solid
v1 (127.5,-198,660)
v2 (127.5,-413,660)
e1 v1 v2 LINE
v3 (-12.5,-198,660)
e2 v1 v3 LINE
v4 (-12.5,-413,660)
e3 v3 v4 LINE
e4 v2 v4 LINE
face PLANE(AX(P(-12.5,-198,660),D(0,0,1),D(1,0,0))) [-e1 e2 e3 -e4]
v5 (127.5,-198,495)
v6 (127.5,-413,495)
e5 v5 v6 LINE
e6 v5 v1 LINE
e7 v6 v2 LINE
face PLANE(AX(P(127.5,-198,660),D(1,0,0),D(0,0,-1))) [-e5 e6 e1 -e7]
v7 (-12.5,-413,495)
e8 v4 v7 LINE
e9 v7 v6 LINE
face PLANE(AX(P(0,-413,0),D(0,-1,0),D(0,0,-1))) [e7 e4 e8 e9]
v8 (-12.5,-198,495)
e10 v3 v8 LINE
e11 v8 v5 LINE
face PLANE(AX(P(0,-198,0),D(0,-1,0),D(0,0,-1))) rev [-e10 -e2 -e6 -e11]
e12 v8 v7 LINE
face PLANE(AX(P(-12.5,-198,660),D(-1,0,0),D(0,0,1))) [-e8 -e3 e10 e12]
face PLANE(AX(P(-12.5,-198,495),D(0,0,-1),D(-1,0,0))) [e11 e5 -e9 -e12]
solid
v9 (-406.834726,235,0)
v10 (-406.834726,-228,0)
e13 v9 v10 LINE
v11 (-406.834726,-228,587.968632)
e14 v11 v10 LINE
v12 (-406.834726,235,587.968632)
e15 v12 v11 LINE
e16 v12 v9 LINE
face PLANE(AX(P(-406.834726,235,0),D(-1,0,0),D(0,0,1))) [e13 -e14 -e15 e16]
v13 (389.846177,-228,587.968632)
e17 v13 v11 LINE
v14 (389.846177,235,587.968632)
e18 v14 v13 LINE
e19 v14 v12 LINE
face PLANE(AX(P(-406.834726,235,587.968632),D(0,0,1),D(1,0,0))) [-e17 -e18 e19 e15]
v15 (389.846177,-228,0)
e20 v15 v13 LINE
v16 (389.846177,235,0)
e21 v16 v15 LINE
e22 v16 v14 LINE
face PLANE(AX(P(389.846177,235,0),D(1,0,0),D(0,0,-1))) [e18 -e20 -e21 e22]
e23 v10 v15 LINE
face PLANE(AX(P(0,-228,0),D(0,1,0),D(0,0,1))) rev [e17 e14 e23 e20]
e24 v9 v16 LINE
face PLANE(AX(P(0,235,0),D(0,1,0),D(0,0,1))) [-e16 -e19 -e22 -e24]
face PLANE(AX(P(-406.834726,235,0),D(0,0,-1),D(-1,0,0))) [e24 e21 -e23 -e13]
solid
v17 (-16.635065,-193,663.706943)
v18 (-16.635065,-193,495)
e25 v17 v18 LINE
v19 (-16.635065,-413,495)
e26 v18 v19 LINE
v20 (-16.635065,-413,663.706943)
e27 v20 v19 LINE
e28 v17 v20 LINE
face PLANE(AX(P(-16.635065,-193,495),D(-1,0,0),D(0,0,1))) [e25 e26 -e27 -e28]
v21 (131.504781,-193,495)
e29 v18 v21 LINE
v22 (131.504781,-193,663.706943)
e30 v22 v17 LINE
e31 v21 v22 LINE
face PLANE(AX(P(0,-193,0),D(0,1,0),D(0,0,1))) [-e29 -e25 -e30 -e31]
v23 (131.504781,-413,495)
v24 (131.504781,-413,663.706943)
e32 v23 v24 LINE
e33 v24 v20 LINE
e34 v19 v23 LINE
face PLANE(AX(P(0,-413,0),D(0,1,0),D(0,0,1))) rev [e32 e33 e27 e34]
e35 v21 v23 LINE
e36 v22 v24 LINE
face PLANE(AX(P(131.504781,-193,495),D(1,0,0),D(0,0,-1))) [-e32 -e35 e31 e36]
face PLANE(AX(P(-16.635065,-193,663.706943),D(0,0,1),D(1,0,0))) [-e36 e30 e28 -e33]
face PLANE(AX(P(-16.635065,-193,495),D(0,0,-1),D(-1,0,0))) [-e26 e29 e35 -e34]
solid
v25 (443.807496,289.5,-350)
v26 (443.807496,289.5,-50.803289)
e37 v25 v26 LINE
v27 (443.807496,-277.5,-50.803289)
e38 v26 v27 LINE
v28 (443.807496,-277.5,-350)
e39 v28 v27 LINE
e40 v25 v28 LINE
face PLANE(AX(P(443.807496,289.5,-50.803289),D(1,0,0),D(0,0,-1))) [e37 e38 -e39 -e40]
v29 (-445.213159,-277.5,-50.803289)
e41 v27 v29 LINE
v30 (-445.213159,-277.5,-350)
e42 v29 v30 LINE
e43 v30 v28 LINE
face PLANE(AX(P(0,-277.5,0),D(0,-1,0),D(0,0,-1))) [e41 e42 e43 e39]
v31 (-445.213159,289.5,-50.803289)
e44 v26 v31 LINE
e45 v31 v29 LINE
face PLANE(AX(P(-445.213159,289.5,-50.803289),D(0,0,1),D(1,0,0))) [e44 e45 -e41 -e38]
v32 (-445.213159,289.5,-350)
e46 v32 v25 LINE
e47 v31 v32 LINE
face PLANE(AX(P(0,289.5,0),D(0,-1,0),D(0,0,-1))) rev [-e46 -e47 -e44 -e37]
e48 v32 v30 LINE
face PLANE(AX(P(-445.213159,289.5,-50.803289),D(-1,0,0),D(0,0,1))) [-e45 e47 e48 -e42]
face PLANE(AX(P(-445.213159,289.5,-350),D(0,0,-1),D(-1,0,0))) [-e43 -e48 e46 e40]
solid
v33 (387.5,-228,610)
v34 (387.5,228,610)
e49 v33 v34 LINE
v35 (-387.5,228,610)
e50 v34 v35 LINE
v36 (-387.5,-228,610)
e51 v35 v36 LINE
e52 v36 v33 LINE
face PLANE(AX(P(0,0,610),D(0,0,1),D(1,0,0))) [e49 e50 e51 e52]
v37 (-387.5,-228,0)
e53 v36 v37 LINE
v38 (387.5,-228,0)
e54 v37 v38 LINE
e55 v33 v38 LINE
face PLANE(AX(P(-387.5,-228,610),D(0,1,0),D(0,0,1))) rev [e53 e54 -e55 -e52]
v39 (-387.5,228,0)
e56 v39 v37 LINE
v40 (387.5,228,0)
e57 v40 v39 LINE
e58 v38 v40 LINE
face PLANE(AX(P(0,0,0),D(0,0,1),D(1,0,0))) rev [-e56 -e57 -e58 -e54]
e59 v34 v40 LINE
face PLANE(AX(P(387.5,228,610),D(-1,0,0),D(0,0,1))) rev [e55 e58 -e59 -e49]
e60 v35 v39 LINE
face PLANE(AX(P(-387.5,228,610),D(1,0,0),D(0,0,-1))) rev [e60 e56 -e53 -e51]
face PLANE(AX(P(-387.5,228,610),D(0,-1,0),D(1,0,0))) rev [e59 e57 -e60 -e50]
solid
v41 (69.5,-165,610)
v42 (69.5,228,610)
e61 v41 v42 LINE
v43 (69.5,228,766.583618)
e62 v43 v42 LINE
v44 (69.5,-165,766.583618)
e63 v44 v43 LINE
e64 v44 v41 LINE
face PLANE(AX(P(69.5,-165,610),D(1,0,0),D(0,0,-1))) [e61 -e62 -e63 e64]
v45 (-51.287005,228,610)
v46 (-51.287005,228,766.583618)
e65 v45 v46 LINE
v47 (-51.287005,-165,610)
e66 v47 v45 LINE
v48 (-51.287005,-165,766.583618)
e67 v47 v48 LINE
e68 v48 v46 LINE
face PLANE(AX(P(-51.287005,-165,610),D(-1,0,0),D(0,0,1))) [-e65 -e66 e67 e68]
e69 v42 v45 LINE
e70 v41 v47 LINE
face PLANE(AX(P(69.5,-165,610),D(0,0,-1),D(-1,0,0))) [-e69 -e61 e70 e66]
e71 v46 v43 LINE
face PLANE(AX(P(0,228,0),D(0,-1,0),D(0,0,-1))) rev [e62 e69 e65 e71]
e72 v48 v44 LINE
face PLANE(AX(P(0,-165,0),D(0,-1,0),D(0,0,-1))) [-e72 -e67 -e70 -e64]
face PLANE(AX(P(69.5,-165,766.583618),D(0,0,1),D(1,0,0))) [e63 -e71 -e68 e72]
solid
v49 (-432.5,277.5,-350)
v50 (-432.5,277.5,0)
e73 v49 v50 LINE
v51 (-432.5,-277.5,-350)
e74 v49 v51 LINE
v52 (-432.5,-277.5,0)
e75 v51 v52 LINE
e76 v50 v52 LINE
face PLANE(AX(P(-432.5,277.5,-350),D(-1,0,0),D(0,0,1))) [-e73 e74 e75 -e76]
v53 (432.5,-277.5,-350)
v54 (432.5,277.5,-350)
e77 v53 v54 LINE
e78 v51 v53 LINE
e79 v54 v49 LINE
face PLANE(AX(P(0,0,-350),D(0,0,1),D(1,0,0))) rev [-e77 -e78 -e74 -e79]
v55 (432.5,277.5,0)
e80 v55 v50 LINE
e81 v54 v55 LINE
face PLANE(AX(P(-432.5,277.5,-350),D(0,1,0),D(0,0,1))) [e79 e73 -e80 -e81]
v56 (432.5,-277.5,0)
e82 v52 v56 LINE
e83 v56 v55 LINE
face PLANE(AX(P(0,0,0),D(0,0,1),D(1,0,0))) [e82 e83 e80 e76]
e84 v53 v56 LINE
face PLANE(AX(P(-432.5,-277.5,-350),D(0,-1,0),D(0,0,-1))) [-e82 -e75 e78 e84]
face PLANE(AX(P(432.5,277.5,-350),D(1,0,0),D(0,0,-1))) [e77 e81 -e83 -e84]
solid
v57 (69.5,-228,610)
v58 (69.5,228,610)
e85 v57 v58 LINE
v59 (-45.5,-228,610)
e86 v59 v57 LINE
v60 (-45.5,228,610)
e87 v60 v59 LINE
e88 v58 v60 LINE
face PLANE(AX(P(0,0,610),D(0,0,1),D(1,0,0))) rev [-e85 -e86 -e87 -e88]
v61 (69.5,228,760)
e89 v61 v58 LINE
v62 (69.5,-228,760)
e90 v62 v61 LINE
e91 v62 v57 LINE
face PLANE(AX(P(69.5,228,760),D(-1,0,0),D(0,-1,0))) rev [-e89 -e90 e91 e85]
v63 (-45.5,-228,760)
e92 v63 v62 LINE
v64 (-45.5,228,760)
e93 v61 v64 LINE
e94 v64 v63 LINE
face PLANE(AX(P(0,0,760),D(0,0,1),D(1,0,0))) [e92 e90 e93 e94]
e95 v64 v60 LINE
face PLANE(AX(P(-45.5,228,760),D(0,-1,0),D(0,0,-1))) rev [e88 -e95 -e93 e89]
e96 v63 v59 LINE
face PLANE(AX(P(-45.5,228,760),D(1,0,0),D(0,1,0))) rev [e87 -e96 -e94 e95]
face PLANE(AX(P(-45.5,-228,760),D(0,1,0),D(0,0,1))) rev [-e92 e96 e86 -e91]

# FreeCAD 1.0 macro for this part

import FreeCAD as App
import Part
import Sketcher

V = App.Vector

doc = App.newDocument("Part")
body = doc.addObject("PartDesign::Body", "Body")

# Sketch on XY plane
sketch1 = doc.addObject("Sketcher::SketchObject", "Sketch")
body.addObject(sketch1)
sketch1.AttachmentSupport = (doc.XY_Plane, [""])
sketch1.MapMode = "FlatFace"
sketch1.addGeometry([
    Part.LineSegment(V(-432, 278, 0), V(-432, -278, 0)),
    Part.LineSegment(V(-432, -278, 0), V(432, -278, 0)),
    Part.LineSegment(V(432, -278, 0), V(432, 278, 0)),
    Part.LineSegment(V(432, 278, 0), V(-432, 278, 0)),
], False)
sketch1.addConstraint([
    Sketcher.Constraint("Coincident", 0, 2, 1, 1),
    Sketcher.Constraint("Coincident", 1, 2, 2, 1),
    Sketcher.Constraint("Coincident", 2, 2, 3, 1),
    Sketcher.Constraint("Coincident", 3, 2, 0, 1),
    Sketcher.Constraint("Vertical", 0),
    Sketcher.Constraint("Horizontal", 1),
    Sketcher.Constraint("Vertical", 2),
    Sketcher.Constraint("Horizontal", 3),
    Sketcher.Constraint("Symmetric", 0, 2, 2, 2, -1, 1),
    Sketcher.Constraint("DistanceX", 1, 1, 1, 2, 865.0),
    Sketcher.Constraint("DistanceY", 0, 2, 0, 1, 555.0),
])
pad1 = doc.addObject("PartDesign::Pad", "Pad")
body.addObject(pad1)
pad1.Profile = sketch1
pad1.Length = 350
pad1.Reversed = True
body2 = doc.addObject("PartDesign::Body", "Body001")

# Sketch on XY plane
sketch2 = doc.addObject("Sketcher::SketchObject", "Sketch001")
body2.addObject(sketch2)
sketch2.AttachmentSupport = (doc.getObject("XY_Plane001"), [""])
sketch2.MapMode = "FlatFace"
sketch2.addGeometry([
    Part.LineSegment(V(-388, 228, 0), V(-388, -228, 0)),
    Part.LineSegment(V(-388, -228, 0), V(388, -228, 0)),
    Part.LineSegment(V(388, -228, 0), V(388, 228, 0)),
    Part.LineSegment(V(388, 228, 0), V(-388, 228, 0)),
], False)
sketch2.addConstraint([
    Sketcher.Constraint("Coincident", 0, 2, 1, 1),
    Sketcher.Constraint("Coincident", 1, 2, 2, 1),
    Sketcher.Constraint("Coincident", 2, 2, 3, 1),
    Sketcher.Constraint("Coincident", 3, 2, 0, 1),
    Sketcher.Constraint("Vertical", 0),
    Sketcher.Constraint("Horizontal", 1),
    Sketcher.Constraint("Vertical", 2),
    Sketcher.Constraint("Horizontal", 3),
    Sketcher.Constraint("Symmetric", 0, 2, 2, 2, -1, 1),
    Sketcher.Constraint("DistanceX", 1, 1, 1, 2, 775.0),
    Sketcher.Constraint("DistanceY", 0, 2, 0, 1, 456.0),
])
pad2 = doc.addObject("PartDesign::Pad", "Pad001")
body2.addObject(pad2)
pad2.Profile = sketch2
pad2.Length = 610
body3 = doc.addObject("PartDesign::Body", "Body002")

# Sketch on XY plane
sketch3 = doc.addObject("Sketcher::SketchObject", "Sketch002")
body3.addObject(sketch3)
sketch3.AttachmentSupport = (doc.getObject("XY_Plane002"), [""])
sketch3.MapMode = "FlatFace"
sketch3.AttachmentOffset = App.Placement(V(0, 0, 610), App.Rotation())
sketch3.addGeometry([
    Part.LineSegment(V(-46, 228, 0), V(-46, -228, 0)),
    Part.LineSegment(V(-46, -228, 0), V(70, -228, 0)),
    Part.LineSegment(V(70, -228, 0), V(70, 228, 0)),
    Part.LineSegment(V(70, 228, 0), V(-46, 228, 0)),
], False)
sketch3.addConstraint([
    Sketcher.Constraint("Coincident", 0, 2, 1, 1),
    Sketcher.Constraint("Coincident", 1, 2, 2, 1),
    Sketcher.Constraint("Coincident", 2, 2, 3, 1),
    Sketcher.Constraint("Coincident", 3, 2, 0, 1),
    Sketcher.Constraint("Vertical", 0),
    Sketcher.Constraint("Horizontal", 1),
    Sketcher.Constraint("Vertical", 2),
    Sketcher.Constraint("Horizontal", 3),
    Sketcher.Constraint("DistanceX", 1, 1, 1, 2, 115.0),
    Sketcher.Constraint("DistanceY", 0, 2, 0, 1, 456.0),
    Sketcher.Constraint("DistanceY", 0, 2, -1, 1, 228.0),
    Sketcher.Constraint("DistanceX", 0, 2, -1, 1, 45.5),
])
pad3 = doc.addObject("PartDesign::Pad", "Pad002")
body3.addObject(pad3)
pad3.Profile = sketch3
pad3.Length = 150
body4 = doc.addObject("PartDesign::Body", "Body003")

# Sketch on XZ plane
sketch4 = doc.addObject("Sketcher::SketchObject", "Sketch003")
body4.addObject(sketch4)
sketch4.AttachmentSupport = (doc.getObject("XZ_Plane003"), [""])
sketch4.MapMode = "FlatFace"
sketch4.AttachmentOffset = App.Placement(V(0, 0, 228), App.Rotation())
sketch4.addGeometry([
    Part.LineSegment(V(128, 495, 0), V(128, 660, 0)),
    Part.LineSegment(V(128, 660, 0), V(-12, 660, 0)),
    Part.LineSegment(V(-12, 660, 0), V(-12, 495, 0)),
    Part.LineSegment(V(-12, 495, 0), V(128, 495, 0)),
], False)
sketch4.addConstraint([
    Sketcher.Constraint("Coincident", 0, 2, 1, 1),
    Sketcher.Constraint("Coincident", 1, 2, 2, 1),
    Sketcher.Constraint("Coincident", 2, 2, 3, 1),
    Sketcher.Constraint("Coincident", 3, 2, 0, 1),
    Sketcher.Constraint("Vertical", 0),
    Sketcher.Constraint("Horizontal", 1),
    Sketcher.Constraint("Vertical", 2),
    Sketcher.Constraint("Horizontal", 3),
    Sketcher.Constraint("DistanceX", 1, 2, 1, 1, 140.0),
    Sketcher.Constraint("DistanceY", 0, 1, 0, 2, 165.0),
    Sketcher.Constraint("DistanceY", -1, 1, 0, 2, 660.0),
    Sketcher.Constraint("DistanceX", -1, 1, 0, 2, 127.5),
])
pad4 = doc.addObject("PartDesign::Pad", "Pad003")
body4.addObject(pad4)
pad4.Profile = sketch4
pad4.Type = "TwoLengths"
pad4.Length = 185
pad4.Length2 = 30
body5 = doc.addObject("PartDesign::Body", "Body004")

# Sketch on XZ plane
sketch5 = doc.addObject("Sketcher::SketchObject", "Sketch004")
body5.addObject(sketch5)
sketch5.AttachmentSupport = (doc.getObject("XZ_Plane004"), [""])
sketch5.MapMode = "FlatFace"
sketch5.AttachmentOffset = App.Placement(V(0, 0, 277.5), App.Rotation())
sketch5.addGeometry([
    Part.LineSegment(V(444, -350, 0), V(444, -51, 0)),
    Part.LineSegment(V(444, -51, 0), V(-445, -51, 0)),
    Part.LineSegment(V(-445, -51, 0), V(-445, -350, 0)),
    Part.LineSegment(V(-445, -350, 0), V(444, -350, 0)),
], False)
sketch5.addConstraint([
    Sketcher.Constraint("Coincident", 0, 2, 1, 1),
    Sketcher.Constraint("Coincident", 1, 2, 2, 1),
    Sketcher.Constraint("Coincident", 2, 2, 3, 1),
    Sketcher.Constraint("Coincident", 3, 2, 0, 1),
    Sketcher.Constraint("Vertical", 0),
    Sketcher.Constraint("Horizontal", 1),
    Sketcher.Constraint("Vertical", 2),
    Sketcher.Constraint("Horizontal", 3),
    Sketcher.Constraint("DistanceY", 2, 2, -1, 1, 350.0),
    Sketcher.Constraint("DistanceY", 0, 1, 0, 2, 299.196711),
    Sketcher.Constraint("DistanceX", 1, 2, 1, 1, 889.020655),
    Sketcher.Constraint("DistanceX", 1, 2, -1, 1, 445.213159),
])
pad5 = doc.addObject("PartDesign::Pad", "Pad004")
body5.addObject(pad5)
pad5.Profile = sketch5
pad5.Length = 567
pad5.Reversed = True
body6 = doc.addObject("PartDesign::Body", "Body005")

# Sketch on XZ plane
sketch6 = doc.addObject("Sketcher::SketchObject", "Sketch005")
body6.addObject(sketch6)
sketch6.AttachmentSupport = (doc.getObject("XZ_Plane005"), [""])
sketch6.MapMode = "FlatFace"
sketch6.AttachmentOffset = App.Placement(V(0, 0, 228), App.Rotation())
sketch6.addGeometry([
    Part.LineSegment(V(390, 0, 0), V(390, 588, 0)),
    Part.LineSegment(V(390, 588, 0), V(-407, 588, 0)),
    Part.LineSegment(V(-407, 588, 0), V(-407, 0, 0)),
    Part.LineSegment(V(-407, 0, 0), V(390, 0, 0)),
], False)
sketch6.addConstraint([
    Sketcher.Constraint("Coincident", 0, 2, 1, 1),
    Sketcher.Constraint("Coincident", 1, 2, 2, 1),
    Sketcher.Constraint("Coincident", 2, 2, 3, 1),
    Sketcher.Constraint("Coincident", 3, 2, 0, 1),
    Sketcher.Constraint("Vertical", 0),
    Sketcher.Constraint("Horizontal", 1),
    Sketcher.Constraint("Vertical", 2),
    Sketcher.Constraint("Horizontal", 3),
    Sketcher.Constraint("PointOnObject", 2, 2, -1),
    Sketcher.Constraint("DistanceX", 1, 2, 1, 1, 796.680903),
    Sketcher.Constraint("DistanceY", 0, 1, 0, 2, 587.968632),
    Sketcher.Constraint("DistanceX", -1, 1, 0, 2, 389.846177),
])
pad6 = doc.addObject("PartDesign::Pad", "Pad005")
body6.addObject(pad6)
pad6.Profile = sketch6
pad6.Length = 463
pad6.Reversed = True
body7 = doc.addObject("PartDesign::Body", "Body006")

# Sketch on XZ plane
sketch7 = doc.addObject("Sketcher::SketchObject", "Sketch006")
body7.addObject(sketch7)
sketch7.AttachmentSupport = (doc.getObject("XZ_Plane006"), [""])
sketch7.MapMode = "FlatFace"
sketch7.AttachmentOffset = App.Placement(V(0, 0, 413), App.Rotation())
sketch7.addGeometry([
    Part.LineSegment(V(132, 495, 0), V(132, 664, 0)),
    Part.LineSegment(V(132, 664, 0), V(-17, 664, 0)),
    Part.LineSegment(V(-17, 664, 0), V(-17, 495, 0)),
    Part.LineSegment(V(-17, 495, 0), V(132, 495, 0)),
], False)
sketch7.addConstraint([
    Sketcher.Constraint("Coincident", 0, 2, 1, 1),
    Sketcher.Constraint("Coincident", 1, 2, 2, 1),
    Sketcher.Constraint("Coincident", 2, 2, 3, 1),
    Sketcher.Constraint("Coincident", 3, 2, 0, 1),
    Sketcher.Constraint("Vertical", 0),
    Sketcher.Constraint("Horizontal", 1),
    Sketcher.Constraint("Vertical", 2),
    Sketcher.Constraint("Horizontal", 3),
    Sketcher.Constraint("DistanceY", -1, 1, 2, 2, 495.0),
    Sketcher.Constraint("DistanceX", 1, 2, 1, 1, 148.139847),
    Sketcher.Constraint("DistanceY", 0, 1, 0, 2, 168.706943),
    Sketcher.Constraint("DistanceX", -1, 1, 0, 2, 131.504781),
])
pad7 = doc.addObject("PartDesign::Pad", "Pad006")
body7.addObject(pad7)
pad7.Profile = sketch7
pad7.Length = 220
pad7.Reversed = True
body8 = doc.addObject("PartDesign::Body", "Body007")

# Sketch on XZ plane
sketch8 = doc.addObject("Sketcher::SketchObject", "Sketch007")
body8.addObject(sketch8)
sketch8.AttachmentSupport = (doc.getObject("XZ_Plane007"), [""])
sketch8.MapMode = "FlatFace"
sketch8.AttachmentOffset = App.Placement(V(0, 0, -228), App.Rotation())
sketch8.addGeometry([
    Part.LineSegment(V(-51, 610, 0), V(-51, 767, 0)),
    Part.LineSegment(V(-51, 767, 0), V(70, 767, 0)),
    Part.LineSegment(V(70, 767, 0), V(70, 610, 0)),
    Part.LineSegment(V(70, 610, 0), V(-51, 610, 0)),
], False)
sketch8.addConstraint([
    Sketcher.Constraint("Coincident", 0, 2, 1, 1),
    Sketcher.Constraint("Coincident", 1, 2, 2, 1),
    Sketcher.Constraint("Coincident", 2, 2, 3, 1),
    Sketcher.Constraint("Coincident", 3, 2, 0, 1),
    Sketcher.Constraint("Vertical", 0),
    Sketcher.Constraint("Horizontal", 1),
    Sketcher.Constraint("Vertical", 2),
    Sketcher.Constraint("Horizontal", 3),
    Sketcher.Constraint("DistanceY", -1, 1, 2, 2, 610.0),
    Sketcher.Constraint("DistanceX", -1, 1, 1, 2, 69.5),
    Sketcher.Constraint("DistanceX", 1, 1, 1, 2, 120.787005),
    Sketcher.Constraint("DistanceY", 0, 1, 0, 2, 156.583618),
])
pad8 = doc.addObject("PartDesign::Pad", "Pad007")
body8.addObject(pad8)
pad8.Profile = sketch8
pad8.Length = 393

doc.recompute()
